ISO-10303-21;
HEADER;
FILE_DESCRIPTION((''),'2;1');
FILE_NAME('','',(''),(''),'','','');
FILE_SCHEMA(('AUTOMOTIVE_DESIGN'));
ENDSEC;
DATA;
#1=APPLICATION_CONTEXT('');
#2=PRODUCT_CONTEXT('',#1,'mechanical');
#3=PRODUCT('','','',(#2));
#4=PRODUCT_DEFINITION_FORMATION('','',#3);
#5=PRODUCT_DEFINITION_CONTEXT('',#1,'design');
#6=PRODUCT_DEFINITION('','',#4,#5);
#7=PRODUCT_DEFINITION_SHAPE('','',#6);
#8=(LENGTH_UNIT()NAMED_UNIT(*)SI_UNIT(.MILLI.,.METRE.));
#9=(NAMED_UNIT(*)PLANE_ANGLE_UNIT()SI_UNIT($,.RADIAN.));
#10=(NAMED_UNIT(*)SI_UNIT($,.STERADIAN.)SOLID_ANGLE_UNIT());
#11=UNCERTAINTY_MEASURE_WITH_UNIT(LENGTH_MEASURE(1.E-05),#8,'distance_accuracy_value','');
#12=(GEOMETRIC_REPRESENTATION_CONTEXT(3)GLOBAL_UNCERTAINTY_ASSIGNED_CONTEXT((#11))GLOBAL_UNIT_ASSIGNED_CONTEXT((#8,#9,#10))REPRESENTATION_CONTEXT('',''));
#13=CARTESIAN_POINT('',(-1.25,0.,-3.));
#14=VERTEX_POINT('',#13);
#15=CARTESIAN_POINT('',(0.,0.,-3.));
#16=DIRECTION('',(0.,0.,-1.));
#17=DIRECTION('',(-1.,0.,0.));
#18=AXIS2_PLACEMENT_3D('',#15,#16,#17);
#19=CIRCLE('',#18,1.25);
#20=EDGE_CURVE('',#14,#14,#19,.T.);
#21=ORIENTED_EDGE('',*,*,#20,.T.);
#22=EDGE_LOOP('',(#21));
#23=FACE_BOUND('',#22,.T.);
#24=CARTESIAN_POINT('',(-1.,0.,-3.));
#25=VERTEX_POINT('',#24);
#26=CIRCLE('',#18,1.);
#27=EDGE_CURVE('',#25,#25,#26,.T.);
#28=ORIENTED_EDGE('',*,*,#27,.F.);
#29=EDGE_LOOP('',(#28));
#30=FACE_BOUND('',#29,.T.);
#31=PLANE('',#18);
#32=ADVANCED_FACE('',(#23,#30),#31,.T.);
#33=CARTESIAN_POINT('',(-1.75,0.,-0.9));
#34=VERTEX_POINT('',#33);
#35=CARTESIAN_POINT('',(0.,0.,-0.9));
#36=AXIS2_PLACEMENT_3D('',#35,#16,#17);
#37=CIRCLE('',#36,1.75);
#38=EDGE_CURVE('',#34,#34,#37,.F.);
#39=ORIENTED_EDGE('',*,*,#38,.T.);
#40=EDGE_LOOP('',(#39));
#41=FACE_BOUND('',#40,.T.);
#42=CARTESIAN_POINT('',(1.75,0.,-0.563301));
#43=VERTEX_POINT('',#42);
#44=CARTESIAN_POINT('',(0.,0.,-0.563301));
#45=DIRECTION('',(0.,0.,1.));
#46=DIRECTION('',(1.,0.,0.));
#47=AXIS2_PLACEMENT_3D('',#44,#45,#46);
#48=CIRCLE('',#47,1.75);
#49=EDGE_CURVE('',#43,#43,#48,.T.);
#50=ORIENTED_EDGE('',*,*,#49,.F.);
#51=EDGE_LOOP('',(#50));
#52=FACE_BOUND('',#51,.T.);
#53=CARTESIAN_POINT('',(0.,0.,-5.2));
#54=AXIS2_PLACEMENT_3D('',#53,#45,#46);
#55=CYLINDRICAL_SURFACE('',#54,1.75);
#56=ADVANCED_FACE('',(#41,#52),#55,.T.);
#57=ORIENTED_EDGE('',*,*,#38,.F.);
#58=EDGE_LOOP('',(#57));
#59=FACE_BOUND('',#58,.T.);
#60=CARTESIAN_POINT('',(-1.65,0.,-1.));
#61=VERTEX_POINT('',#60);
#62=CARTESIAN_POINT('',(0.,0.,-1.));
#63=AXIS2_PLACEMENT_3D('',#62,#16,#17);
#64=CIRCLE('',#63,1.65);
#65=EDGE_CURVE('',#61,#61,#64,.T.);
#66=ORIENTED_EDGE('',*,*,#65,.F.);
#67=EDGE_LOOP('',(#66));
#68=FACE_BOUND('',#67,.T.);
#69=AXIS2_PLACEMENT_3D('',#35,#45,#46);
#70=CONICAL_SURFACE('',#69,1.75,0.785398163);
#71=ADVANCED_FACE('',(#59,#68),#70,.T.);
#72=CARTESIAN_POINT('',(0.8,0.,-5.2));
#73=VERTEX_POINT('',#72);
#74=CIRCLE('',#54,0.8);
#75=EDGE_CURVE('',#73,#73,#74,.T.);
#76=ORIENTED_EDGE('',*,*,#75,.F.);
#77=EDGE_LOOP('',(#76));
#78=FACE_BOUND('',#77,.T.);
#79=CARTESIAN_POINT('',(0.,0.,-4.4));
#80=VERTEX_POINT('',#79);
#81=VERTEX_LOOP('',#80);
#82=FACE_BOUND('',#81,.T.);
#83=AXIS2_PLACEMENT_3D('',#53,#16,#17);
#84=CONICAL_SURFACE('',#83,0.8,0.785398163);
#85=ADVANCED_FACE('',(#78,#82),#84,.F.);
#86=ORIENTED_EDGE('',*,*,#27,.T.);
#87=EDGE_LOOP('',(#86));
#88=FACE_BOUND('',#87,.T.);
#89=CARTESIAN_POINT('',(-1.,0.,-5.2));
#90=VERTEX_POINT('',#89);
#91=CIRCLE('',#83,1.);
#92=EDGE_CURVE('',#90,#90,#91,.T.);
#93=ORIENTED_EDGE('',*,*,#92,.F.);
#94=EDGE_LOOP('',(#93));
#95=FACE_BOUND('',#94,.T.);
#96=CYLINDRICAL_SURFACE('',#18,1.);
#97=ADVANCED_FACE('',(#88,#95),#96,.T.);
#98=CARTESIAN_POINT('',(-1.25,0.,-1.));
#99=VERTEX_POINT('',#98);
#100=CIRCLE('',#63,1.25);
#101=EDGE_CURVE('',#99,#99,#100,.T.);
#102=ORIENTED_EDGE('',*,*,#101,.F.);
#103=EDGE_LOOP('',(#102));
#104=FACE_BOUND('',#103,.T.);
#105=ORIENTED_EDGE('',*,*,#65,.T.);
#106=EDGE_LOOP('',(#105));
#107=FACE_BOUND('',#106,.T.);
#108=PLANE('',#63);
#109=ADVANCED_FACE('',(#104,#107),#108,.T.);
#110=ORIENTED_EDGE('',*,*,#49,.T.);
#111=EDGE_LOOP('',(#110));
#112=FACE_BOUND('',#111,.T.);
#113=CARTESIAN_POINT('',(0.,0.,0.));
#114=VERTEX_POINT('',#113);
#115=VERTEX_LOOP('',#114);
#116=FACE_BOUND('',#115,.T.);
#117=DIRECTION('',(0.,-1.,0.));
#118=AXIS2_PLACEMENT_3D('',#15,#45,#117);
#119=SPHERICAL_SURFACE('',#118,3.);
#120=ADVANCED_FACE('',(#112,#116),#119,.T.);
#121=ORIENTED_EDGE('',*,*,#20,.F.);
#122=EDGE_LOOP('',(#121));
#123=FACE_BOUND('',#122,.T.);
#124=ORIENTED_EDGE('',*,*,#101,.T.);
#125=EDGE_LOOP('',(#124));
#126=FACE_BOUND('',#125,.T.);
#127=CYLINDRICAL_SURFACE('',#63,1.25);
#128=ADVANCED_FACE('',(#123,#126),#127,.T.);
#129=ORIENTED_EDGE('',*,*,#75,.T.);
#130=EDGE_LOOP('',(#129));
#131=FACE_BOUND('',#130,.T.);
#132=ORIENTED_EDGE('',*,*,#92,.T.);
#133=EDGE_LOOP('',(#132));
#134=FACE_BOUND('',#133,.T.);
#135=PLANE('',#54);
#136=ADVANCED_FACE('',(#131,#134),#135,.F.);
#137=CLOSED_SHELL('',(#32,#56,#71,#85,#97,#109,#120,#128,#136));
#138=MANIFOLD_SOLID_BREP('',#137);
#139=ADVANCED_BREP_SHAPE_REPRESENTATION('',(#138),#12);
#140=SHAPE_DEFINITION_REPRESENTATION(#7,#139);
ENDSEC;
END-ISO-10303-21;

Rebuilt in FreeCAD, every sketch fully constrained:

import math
import FreeCAD as App
import Part
import Sketcher
from FreeCAD import Vector


def edges_at(feature, points):
    """Names of the edges that pass closest to the given points."""
    edges = feature.Shape.Edges
    near = lambda p: min(range(len(edges)), key=lambda i: edges[i].distToShape(Part.Vertex(*p))[0])
    return sorted({f"Edge{near(p) + 1}" for p in points})


def add_polygon(sketch, points):
    """Adds a closed chain of lines whose ends are joined by coincident constraints."""
    first, n = sketch.GeometryCount, len(points)
    for a, b in zip(points, points[1:] + points[:1]):
        sketch.addGeometry(Part.LineSegment(App.Vector(*a, 0), App.Vector(*b, 0)), False)
    for i in range(n):
        sketch.addConstraint(Sketcher.Constraint("Coincident", first + i, 2, first + (i + 1) % n, 1))

doc = App.newDocument("Part")
body = doc.addObject("PartDesign::Body", "Body")

# Sketch on XY plane
sketch1 = doc.addObject("Sketcher::SketchObject", "Sketch")
body.addObject(sketch1)
sketch1.AttachmentSupport = (doc.XY_Plane, [""])
sketch1.MapMode = "FlatFace"
sketch1.addGeometry(Part.Circle(Vector(0, 0, 0), Vector(0, 0, 1), 1.8), False)
sketch1.addConstraint(Sketcher.Constraint("Coincident", 0, 3, -1, 1))
sketch1.addConstraint(Sketcher.Constraint("Diameter", 0, 3.5))
pad1 = doc.addObject("PartDesign::Pad", "Pad")
body.addObject(pad1)
pad1.Profile = sketch1
pad1.Length = 5.2
pad1.Reversed = True

# Sketch on YZ plane
sketch2 = doc.addObject("Sketcher::SketchObject", "Sketch001")
body.addObject(sketch2)
sketch2.AttachmentSupport = (doc.YZ_Plane, [""])
sketch2.MapMode = "FlatFace"
sketch2.addGeometry(Part.LineSegment(Vector(0, 0.5, 0), Vector(0, 0, 0)), False)
sketch2.addGeometry(Part.ArcOfCircle(Part.Circle(Vector(0, -3, 0), Vector(0, 0, 1), 3), math.radians(54), math.radians(90)), False)
sketch2.addGeometry(Part.LineSegment(Vector(1.8, -0.6, 0), Vector(1.8, 0.5, 0)), False)
sketch2.addGeometry(Part.LineSegment(Vector(1.8, 0.5, 0), Vector(0, 0.5, 0)), False)
sketch2.addConstraint(Sketcher.Constraint("Coincident", 0, 2, 1, 2))
sketch2.addConstraint(Sketcher.Constraint("Coincident", 1, 1, 2, 1))
sketch2.addConstraint(Sketcher.Constraint("Coincident", 2, 2, 3, 1))
sketch2.addConstraint(Sketcher.Constraint("Coincident", 3, 2, 0, 1))
sketch2.addConstraint(Sketcher.Constraint("Vertical", 0))
sketch2.addConstraint(Sketcher.Constraint("Vertical", 2))
sketch2.addConstraint(Sketcher.Constraint("Horizontal", 3))
sketch2.addConstraint(Sketcher.Constraint("Coincident", 0, 2, -1, 1))
sketch2.addConstraint(Sketcher.Constraint("PointOnObject", 1, 3, -2))
sketch2.addConstraint(Sketcher.Constraint("Radius", 1, 3.0))
sketch2.addConstraint(Sketcher.Constraint("DistanceY", 0, 2, 0, 1, 0.5))
sketch2.addConstraint(Sketcher.Constraint("DistanceX", 3, 2, 3, 1, 1.75))
groove = doc.addObject("PartDesign::Groove", "Groove")
body.addObject(groove)
groove.Profile = sketch2
groove.ReferenceAxis = (sketch2, ["V_Axis"])
groove.Angle = 360

# Sketch on XY plane
sketch3 = doc.addObject("Sketcher::SketchObject", "Sketch002")
body.addObject(sketch3)
sketch3.AttachmentSupport = (doc.XY_Plane, [""])
sketch3.MapMode = "FlatFace"
sketch3.AttachmentOffset = App.Placement(Vector(0, 0, -5.2), App.Rotation())
add_polygon(sketch3, [(3.5, 3.5), (3.5, -3.5), (-3.5, -3.5), (-3.5, 3.5)])  # lines 0-3
sketch3.addGeometry(Part.Circle(Vector(0, 0, 0), Vector(0, 0, 1), 1), False)  # 4
sketch3.addConstraint(Sketcher.Constraint("Vertical", 0))
sketch3.addConstraint(Sketcher.Constraint("Horizontal", 1))
sketch3.addConstraint(Sketcher.Constraint("Vertical", 2))
sketch3.addConstraint(Sketcher.Constraint("Horizontal", 3))
sketch3.addConstraint(Sketcher.Constraint("Coincident", 4, 3, -1, 1))
sketch3.addConstraint(Sketcher.Constraint("Symmetric", 0, 2, 2, 2, -1, 1))
sketch3.addConstraint(Sketcher.Constraint("Equal", 3, 0))
sketch3.addConstraint(Sketcher.Constraint("Diameter", 4, 2.0))
sketch3.addConstraint(Sketcher.Constraint("DistanceX", 1, 2, 1, 1, 6.936))
pocket1 = doc.addObject("PartDesign::Pocket", "Pocket")
body.addObject(pocket1)
pocket1.Profile = sketch3
pocket1.Length = 2.2
pocket1.Reversed = True

# Sketch on XY plane
sketch4 = doc.addObject("Sketcher::SketchObject", "Sketch003")
body.addObject(sketch4)
sketch4.AttachmentSupport = (doc.XY_Plane, [""])
sketch4.MapMode = "FlatFace"
sketch4.AttachmentOffset = App.Placement(Vector(0, 0, -3), App.Rotation())
add_polygon(sketch4, [(3.5, 3.5), (3.5, -3.5), (-3.5, -3.5), (-3.5, 3.5)])  # lines 0-3
sketch4.addGeometry(Part.Circle(Vector(0, 0, 0), Vector(0, 0, 1), 1.2), False)  # 4
sketch4.addConstraint(Sketcher.Constraint("Vertical", 0))
sketch4.addConstraint(Sketcher.Constraint("Horizontal", 1))
sketch4.addConstraint(Sketcher.Constraint("Vertical", 2))
sketch4.addConstraint(Sketcher.Constraint("Horizontal", 3))
sketch4.addConstraint(Sketcher.Constraint("Coincident", 4, 3, -1, 1))
sketch4.addConstraint(Sketcher.Constraint("Symmetric", 0, 2, 2, 2, -1, 1))
sketch4.addConstraint(Sketcher.Constraint("Equal", 3, 0))
sketch4.addConstraint(Sketcher.Constraint("Diameter", 4, 2.5))
sketch4.addConstraint(Sketcher.Constraint("DistanceX", 1, 2, 1, 1, 6.936))
pocket2 = doc.addObject("PartDesign::Pocket", "Pocket001")
body.addObject(pocket2)
pocket2.Profile = sketch4
pocket2.Length = 2
pocket2.Reversed = True
doc.recompute()

chamfer = doc.addObject("PartDesign::Chamfer", "Chamfer")
body.addObject(chamfer)
chamfer.Base = (pocket2, edges_at(pocket2, [(-1.75, 0, -1)]))
chamfer.Size = 0.1

# Sketch on YZ plane
sketch5 = doc.addObject("Sketcher::SketchObject", "Sketch004")
body.addObject(sketch5)
sketch5.AttachmentSupport = (doc.YZ_Plane, [""])
sketch5.MapMode = "FlatFace"
add_polygon(sketch5, [(0.8, -5.2), (0, -4.4), (0, -5.2)])  # lines 0-2
sketch5.addConstraint(Sketcher.Constraint("Vertical", 1))
sketch5.addConstraint(Sketcher.Constraint("Horizontal", 2))
sketch5.addConstraint(Sketcher.Constraint("PointOnObject", 0, 2, -2))
sketch5.addConstraint(Sketcher.Constraint("Equal", 2, 1))
sketch5.addConstraint(Sketcher.Constraint("DistanceX", 2, 1, 2, 2, 0.8))
sketch5.addConstraint(Sketcher.Constraint("DistanceY", 0, 2, -1, 1, 4.4))
groove2 = doc.addObject("PartDesign::Groove", "Groove001")
body.addObject(groove2)
groove2.Profile = sketch5
groove2.ReferenceAxis = (sketch5, ["V_Axis"])
groove2.Angle = 360

doc.recompute()
